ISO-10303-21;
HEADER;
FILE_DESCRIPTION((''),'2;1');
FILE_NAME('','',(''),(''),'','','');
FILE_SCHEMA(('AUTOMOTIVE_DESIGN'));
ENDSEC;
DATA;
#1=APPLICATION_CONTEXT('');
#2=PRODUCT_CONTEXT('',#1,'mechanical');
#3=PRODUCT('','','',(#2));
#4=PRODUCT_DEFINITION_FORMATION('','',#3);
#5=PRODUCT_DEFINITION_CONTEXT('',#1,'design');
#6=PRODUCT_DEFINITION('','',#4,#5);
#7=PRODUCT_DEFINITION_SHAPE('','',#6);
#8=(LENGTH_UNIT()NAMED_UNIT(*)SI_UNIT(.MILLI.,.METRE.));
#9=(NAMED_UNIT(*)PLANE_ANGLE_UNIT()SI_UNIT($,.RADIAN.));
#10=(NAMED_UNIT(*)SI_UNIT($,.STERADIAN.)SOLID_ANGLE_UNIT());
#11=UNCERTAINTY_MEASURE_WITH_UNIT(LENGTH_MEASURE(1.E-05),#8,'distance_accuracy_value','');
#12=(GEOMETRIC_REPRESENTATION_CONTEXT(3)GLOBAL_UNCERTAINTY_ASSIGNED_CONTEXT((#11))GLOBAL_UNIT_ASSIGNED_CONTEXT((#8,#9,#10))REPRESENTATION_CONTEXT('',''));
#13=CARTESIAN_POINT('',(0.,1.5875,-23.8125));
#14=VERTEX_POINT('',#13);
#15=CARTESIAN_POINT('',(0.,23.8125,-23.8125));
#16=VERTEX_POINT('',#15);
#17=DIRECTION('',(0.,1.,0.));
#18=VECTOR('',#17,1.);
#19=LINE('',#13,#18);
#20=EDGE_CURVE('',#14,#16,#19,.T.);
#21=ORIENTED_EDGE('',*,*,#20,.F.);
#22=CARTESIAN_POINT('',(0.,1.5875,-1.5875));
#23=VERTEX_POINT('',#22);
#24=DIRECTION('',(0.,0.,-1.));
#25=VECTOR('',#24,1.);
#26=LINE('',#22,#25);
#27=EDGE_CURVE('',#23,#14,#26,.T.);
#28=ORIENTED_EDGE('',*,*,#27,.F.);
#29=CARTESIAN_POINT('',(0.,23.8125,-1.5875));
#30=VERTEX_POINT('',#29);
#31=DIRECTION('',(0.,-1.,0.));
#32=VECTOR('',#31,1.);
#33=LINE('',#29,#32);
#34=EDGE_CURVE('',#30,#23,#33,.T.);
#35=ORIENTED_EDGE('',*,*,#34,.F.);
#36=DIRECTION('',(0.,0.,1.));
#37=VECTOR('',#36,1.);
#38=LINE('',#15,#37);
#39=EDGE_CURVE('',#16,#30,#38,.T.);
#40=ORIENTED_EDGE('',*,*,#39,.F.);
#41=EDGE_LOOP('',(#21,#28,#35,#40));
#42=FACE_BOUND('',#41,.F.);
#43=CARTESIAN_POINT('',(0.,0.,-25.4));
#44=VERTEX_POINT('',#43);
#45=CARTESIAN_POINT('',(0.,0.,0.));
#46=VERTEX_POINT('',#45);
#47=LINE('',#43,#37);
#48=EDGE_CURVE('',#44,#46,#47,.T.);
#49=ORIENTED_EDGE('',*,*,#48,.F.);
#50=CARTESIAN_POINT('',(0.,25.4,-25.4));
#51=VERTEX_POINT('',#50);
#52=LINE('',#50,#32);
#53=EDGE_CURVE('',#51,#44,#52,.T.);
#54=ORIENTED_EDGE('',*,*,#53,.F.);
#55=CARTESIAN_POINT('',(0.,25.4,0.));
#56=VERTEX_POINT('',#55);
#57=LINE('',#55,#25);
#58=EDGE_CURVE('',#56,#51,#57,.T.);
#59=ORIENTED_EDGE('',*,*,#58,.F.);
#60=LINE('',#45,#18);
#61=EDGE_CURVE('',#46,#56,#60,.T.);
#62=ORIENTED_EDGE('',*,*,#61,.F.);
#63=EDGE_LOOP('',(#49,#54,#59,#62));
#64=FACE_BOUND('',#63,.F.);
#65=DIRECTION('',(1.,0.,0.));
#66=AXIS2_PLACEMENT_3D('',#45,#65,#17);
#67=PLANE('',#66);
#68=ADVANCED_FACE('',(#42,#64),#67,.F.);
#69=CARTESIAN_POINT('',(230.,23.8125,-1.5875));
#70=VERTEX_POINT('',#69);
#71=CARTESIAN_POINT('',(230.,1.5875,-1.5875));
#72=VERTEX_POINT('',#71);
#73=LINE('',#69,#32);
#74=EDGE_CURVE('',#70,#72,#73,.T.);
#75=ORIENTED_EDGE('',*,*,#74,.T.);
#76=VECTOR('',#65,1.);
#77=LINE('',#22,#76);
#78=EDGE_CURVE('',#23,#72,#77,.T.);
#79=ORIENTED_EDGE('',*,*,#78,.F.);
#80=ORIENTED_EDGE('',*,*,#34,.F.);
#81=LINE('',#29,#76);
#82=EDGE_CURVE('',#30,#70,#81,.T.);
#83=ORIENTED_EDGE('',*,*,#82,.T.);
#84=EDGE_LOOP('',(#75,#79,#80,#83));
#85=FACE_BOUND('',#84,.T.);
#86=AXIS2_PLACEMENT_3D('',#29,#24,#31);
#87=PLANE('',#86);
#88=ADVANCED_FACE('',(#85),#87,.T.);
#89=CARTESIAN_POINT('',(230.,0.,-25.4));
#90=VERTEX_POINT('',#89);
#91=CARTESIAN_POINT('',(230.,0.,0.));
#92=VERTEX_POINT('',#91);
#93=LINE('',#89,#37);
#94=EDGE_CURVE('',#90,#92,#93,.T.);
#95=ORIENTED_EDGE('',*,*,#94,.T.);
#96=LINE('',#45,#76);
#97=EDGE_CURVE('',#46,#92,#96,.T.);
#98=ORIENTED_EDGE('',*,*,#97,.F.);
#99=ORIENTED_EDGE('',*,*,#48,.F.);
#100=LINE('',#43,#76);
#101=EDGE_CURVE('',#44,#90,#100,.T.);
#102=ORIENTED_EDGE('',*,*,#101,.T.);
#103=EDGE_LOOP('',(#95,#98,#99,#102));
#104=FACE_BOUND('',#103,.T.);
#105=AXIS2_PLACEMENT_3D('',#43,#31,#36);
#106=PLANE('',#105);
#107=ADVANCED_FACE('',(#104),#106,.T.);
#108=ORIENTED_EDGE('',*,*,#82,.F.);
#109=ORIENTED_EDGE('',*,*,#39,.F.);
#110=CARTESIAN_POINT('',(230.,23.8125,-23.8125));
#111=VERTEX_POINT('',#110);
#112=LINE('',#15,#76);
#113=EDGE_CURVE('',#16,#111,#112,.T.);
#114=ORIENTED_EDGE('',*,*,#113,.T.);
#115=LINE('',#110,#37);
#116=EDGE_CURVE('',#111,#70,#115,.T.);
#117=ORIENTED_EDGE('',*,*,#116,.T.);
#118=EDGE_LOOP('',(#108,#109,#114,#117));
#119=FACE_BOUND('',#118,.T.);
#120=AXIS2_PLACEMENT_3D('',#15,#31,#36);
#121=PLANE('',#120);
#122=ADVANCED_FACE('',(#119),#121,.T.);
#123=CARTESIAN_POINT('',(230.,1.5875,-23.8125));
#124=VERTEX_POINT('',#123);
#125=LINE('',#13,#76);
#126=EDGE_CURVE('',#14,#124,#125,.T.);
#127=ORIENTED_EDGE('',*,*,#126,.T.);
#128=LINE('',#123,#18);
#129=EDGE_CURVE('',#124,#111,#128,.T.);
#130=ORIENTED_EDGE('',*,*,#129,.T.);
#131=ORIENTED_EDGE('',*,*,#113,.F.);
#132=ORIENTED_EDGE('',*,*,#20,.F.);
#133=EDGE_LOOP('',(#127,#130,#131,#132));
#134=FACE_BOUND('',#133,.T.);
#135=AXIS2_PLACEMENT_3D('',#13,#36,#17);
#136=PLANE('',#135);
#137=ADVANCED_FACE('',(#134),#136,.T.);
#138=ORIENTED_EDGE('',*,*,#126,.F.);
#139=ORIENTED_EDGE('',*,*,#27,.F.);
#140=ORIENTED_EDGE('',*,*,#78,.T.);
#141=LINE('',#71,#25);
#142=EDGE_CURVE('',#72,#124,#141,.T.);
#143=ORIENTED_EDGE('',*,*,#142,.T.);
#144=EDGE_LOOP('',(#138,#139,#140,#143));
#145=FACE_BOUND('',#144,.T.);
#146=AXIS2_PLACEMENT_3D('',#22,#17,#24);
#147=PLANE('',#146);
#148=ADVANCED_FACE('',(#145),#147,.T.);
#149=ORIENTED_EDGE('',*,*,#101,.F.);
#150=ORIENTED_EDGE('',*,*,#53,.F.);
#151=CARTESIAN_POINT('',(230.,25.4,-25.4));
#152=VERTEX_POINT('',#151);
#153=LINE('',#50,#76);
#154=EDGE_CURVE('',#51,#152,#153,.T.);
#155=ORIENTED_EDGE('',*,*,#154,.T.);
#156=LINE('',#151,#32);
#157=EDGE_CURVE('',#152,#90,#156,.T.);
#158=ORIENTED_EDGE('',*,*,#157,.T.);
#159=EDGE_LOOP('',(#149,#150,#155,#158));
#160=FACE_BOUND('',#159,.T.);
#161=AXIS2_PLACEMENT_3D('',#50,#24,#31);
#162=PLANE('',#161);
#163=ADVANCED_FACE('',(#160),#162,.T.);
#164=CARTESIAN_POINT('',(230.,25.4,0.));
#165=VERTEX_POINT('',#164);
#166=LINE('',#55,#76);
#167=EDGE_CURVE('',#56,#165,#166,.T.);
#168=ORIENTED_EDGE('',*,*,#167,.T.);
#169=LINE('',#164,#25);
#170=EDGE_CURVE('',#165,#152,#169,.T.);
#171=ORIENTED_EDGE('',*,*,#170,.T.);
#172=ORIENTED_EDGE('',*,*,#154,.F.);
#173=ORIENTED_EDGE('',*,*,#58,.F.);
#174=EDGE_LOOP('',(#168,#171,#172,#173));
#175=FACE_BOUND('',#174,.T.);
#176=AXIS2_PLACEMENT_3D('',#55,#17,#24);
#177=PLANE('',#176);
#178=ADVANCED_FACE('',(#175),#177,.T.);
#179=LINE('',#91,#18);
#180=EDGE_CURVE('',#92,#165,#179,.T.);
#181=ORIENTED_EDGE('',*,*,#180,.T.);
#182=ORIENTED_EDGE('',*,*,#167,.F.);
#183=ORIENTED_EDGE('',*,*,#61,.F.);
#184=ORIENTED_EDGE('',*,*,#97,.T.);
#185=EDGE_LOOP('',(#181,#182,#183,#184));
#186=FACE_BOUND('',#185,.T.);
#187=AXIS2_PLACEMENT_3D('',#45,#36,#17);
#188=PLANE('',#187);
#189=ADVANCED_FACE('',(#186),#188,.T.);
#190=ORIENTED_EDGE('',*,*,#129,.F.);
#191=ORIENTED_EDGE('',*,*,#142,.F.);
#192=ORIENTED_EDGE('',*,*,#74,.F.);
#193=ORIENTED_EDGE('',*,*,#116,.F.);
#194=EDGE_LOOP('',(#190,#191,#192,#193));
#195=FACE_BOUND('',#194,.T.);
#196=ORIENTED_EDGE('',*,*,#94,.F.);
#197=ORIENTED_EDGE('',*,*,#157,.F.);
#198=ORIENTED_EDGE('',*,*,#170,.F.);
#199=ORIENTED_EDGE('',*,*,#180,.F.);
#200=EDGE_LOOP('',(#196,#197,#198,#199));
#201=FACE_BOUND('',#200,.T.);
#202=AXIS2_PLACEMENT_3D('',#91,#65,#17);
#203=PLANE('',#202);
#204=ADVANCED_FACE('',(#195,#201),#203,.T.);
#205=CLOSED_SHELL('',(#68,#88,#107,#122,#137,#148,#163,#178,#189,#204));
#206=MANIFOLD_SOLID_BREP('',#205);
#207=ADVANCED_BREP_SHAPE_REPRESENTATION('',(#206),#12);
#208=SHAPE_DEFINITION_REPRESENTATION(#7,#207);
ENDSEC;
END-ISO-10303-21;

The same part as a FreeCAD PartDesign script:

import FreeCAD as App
import Part
import Sketcher
Q = App.Units.Quantity

doc = App.newDocument("Part")
body = doc.addObject("PartDesign::Body", "Body")

sketch1 = body.newObject("Sketcher::SketchObject", "Sketch")
sketch1.AttachmentSupport = (doc.getObject("YZ_Plane"), [""])
sketch1.MapMode = "FlatFace"
sketch1.addGeometry([
    Part.LineSegment(App.Vector(25, 0, 0), App.Vector(0, 0, 0)),
    Part.LineSegment(App.Vector(0, 0, 0), App.Vector(0, -25, 0)),
    Part.LineSegment(App.Vector(0, -25, 0), App.Vector(25, -25, 0)),
    Part.LineSegment(App.Vector(25, -25, 0), App.Vector(25, 0, 0)),
    Part.LineSegment(App.Vector(24, -2, 0), App.Vector(24, -24, 0)),
    Part.LineSegment(App.Vector(24, -24, 0), App.Vector(2, -24, 0)),
    Part.LineSegment(App.Vector(2, -24, 0), App.Vector(2, -2, 0)),
    Part.LineSegment(App.Vector(2, -2, 0), App.Vector(24, -2, 0)),
], False)
sketch1.addConstraint([
    Sketcher.Constraint("Coincident", 0, 2, 1, 1),
    Sketcher.Constraint("Coincident", 1, 2, 2, 1),
    Sketcher.Constraint("Coincident", 2, 2, 3, 1),
    Sketcher.Constraint("Coincident", 3, 2, 0, 1),
    Sketcher.Constraint("Coincident", 4, 2, 5, 1),
    Sketcher.Constraint("Coincident", 5, 2, 6, 1),
    Sketcher.Constraint("Coincident", 6, 2, 7, 1),
    Sketcher.Constraint("Coincident", 7, 2, 4, 1),
    Sketcher.Constraint("Horizontal", 0),
    Sketcher.Constraint("Vertical", 1),
    Sketcher.Constraint("Horizontal", 2),
    Sketcher.Constraint("Vertical", 3),
    Sketcher.Constraint("Vertical", 4),
    Sketcher.Constraint("Horizontal", 5),
    Sketcher.Constraint("Vertical", 6),
    Sketcher.Constraint("Horizontal", 7),
    Sketcher.Constraint("Coincident", 0, 2, -1, 1),
    Sketcher.Constraint("Equal", 2, 1),
    Sketcher.Constraint("Equal", 7, 4),
    Sketcher.Constraint("DistanceX", 0, 2, 0, 1, Q("1 in")),
    Sketcher.Constraint("DistanceX", -1, 1, 5, 2, Q("0.0625 in")),
    Sketcher.Constraint("DistanceY", 6, 2, -1, 1, Q("0.0625 in")),
    Sketcher.Constraint("DistanceX", 4, 2, 2, 2, Q("0.0625 in")),
])
pad1 = body.newObject("PartDesign::Pad", "Pad")
pad1.Profile = sketch1
pad1.Length = 230

doc.recompute()
